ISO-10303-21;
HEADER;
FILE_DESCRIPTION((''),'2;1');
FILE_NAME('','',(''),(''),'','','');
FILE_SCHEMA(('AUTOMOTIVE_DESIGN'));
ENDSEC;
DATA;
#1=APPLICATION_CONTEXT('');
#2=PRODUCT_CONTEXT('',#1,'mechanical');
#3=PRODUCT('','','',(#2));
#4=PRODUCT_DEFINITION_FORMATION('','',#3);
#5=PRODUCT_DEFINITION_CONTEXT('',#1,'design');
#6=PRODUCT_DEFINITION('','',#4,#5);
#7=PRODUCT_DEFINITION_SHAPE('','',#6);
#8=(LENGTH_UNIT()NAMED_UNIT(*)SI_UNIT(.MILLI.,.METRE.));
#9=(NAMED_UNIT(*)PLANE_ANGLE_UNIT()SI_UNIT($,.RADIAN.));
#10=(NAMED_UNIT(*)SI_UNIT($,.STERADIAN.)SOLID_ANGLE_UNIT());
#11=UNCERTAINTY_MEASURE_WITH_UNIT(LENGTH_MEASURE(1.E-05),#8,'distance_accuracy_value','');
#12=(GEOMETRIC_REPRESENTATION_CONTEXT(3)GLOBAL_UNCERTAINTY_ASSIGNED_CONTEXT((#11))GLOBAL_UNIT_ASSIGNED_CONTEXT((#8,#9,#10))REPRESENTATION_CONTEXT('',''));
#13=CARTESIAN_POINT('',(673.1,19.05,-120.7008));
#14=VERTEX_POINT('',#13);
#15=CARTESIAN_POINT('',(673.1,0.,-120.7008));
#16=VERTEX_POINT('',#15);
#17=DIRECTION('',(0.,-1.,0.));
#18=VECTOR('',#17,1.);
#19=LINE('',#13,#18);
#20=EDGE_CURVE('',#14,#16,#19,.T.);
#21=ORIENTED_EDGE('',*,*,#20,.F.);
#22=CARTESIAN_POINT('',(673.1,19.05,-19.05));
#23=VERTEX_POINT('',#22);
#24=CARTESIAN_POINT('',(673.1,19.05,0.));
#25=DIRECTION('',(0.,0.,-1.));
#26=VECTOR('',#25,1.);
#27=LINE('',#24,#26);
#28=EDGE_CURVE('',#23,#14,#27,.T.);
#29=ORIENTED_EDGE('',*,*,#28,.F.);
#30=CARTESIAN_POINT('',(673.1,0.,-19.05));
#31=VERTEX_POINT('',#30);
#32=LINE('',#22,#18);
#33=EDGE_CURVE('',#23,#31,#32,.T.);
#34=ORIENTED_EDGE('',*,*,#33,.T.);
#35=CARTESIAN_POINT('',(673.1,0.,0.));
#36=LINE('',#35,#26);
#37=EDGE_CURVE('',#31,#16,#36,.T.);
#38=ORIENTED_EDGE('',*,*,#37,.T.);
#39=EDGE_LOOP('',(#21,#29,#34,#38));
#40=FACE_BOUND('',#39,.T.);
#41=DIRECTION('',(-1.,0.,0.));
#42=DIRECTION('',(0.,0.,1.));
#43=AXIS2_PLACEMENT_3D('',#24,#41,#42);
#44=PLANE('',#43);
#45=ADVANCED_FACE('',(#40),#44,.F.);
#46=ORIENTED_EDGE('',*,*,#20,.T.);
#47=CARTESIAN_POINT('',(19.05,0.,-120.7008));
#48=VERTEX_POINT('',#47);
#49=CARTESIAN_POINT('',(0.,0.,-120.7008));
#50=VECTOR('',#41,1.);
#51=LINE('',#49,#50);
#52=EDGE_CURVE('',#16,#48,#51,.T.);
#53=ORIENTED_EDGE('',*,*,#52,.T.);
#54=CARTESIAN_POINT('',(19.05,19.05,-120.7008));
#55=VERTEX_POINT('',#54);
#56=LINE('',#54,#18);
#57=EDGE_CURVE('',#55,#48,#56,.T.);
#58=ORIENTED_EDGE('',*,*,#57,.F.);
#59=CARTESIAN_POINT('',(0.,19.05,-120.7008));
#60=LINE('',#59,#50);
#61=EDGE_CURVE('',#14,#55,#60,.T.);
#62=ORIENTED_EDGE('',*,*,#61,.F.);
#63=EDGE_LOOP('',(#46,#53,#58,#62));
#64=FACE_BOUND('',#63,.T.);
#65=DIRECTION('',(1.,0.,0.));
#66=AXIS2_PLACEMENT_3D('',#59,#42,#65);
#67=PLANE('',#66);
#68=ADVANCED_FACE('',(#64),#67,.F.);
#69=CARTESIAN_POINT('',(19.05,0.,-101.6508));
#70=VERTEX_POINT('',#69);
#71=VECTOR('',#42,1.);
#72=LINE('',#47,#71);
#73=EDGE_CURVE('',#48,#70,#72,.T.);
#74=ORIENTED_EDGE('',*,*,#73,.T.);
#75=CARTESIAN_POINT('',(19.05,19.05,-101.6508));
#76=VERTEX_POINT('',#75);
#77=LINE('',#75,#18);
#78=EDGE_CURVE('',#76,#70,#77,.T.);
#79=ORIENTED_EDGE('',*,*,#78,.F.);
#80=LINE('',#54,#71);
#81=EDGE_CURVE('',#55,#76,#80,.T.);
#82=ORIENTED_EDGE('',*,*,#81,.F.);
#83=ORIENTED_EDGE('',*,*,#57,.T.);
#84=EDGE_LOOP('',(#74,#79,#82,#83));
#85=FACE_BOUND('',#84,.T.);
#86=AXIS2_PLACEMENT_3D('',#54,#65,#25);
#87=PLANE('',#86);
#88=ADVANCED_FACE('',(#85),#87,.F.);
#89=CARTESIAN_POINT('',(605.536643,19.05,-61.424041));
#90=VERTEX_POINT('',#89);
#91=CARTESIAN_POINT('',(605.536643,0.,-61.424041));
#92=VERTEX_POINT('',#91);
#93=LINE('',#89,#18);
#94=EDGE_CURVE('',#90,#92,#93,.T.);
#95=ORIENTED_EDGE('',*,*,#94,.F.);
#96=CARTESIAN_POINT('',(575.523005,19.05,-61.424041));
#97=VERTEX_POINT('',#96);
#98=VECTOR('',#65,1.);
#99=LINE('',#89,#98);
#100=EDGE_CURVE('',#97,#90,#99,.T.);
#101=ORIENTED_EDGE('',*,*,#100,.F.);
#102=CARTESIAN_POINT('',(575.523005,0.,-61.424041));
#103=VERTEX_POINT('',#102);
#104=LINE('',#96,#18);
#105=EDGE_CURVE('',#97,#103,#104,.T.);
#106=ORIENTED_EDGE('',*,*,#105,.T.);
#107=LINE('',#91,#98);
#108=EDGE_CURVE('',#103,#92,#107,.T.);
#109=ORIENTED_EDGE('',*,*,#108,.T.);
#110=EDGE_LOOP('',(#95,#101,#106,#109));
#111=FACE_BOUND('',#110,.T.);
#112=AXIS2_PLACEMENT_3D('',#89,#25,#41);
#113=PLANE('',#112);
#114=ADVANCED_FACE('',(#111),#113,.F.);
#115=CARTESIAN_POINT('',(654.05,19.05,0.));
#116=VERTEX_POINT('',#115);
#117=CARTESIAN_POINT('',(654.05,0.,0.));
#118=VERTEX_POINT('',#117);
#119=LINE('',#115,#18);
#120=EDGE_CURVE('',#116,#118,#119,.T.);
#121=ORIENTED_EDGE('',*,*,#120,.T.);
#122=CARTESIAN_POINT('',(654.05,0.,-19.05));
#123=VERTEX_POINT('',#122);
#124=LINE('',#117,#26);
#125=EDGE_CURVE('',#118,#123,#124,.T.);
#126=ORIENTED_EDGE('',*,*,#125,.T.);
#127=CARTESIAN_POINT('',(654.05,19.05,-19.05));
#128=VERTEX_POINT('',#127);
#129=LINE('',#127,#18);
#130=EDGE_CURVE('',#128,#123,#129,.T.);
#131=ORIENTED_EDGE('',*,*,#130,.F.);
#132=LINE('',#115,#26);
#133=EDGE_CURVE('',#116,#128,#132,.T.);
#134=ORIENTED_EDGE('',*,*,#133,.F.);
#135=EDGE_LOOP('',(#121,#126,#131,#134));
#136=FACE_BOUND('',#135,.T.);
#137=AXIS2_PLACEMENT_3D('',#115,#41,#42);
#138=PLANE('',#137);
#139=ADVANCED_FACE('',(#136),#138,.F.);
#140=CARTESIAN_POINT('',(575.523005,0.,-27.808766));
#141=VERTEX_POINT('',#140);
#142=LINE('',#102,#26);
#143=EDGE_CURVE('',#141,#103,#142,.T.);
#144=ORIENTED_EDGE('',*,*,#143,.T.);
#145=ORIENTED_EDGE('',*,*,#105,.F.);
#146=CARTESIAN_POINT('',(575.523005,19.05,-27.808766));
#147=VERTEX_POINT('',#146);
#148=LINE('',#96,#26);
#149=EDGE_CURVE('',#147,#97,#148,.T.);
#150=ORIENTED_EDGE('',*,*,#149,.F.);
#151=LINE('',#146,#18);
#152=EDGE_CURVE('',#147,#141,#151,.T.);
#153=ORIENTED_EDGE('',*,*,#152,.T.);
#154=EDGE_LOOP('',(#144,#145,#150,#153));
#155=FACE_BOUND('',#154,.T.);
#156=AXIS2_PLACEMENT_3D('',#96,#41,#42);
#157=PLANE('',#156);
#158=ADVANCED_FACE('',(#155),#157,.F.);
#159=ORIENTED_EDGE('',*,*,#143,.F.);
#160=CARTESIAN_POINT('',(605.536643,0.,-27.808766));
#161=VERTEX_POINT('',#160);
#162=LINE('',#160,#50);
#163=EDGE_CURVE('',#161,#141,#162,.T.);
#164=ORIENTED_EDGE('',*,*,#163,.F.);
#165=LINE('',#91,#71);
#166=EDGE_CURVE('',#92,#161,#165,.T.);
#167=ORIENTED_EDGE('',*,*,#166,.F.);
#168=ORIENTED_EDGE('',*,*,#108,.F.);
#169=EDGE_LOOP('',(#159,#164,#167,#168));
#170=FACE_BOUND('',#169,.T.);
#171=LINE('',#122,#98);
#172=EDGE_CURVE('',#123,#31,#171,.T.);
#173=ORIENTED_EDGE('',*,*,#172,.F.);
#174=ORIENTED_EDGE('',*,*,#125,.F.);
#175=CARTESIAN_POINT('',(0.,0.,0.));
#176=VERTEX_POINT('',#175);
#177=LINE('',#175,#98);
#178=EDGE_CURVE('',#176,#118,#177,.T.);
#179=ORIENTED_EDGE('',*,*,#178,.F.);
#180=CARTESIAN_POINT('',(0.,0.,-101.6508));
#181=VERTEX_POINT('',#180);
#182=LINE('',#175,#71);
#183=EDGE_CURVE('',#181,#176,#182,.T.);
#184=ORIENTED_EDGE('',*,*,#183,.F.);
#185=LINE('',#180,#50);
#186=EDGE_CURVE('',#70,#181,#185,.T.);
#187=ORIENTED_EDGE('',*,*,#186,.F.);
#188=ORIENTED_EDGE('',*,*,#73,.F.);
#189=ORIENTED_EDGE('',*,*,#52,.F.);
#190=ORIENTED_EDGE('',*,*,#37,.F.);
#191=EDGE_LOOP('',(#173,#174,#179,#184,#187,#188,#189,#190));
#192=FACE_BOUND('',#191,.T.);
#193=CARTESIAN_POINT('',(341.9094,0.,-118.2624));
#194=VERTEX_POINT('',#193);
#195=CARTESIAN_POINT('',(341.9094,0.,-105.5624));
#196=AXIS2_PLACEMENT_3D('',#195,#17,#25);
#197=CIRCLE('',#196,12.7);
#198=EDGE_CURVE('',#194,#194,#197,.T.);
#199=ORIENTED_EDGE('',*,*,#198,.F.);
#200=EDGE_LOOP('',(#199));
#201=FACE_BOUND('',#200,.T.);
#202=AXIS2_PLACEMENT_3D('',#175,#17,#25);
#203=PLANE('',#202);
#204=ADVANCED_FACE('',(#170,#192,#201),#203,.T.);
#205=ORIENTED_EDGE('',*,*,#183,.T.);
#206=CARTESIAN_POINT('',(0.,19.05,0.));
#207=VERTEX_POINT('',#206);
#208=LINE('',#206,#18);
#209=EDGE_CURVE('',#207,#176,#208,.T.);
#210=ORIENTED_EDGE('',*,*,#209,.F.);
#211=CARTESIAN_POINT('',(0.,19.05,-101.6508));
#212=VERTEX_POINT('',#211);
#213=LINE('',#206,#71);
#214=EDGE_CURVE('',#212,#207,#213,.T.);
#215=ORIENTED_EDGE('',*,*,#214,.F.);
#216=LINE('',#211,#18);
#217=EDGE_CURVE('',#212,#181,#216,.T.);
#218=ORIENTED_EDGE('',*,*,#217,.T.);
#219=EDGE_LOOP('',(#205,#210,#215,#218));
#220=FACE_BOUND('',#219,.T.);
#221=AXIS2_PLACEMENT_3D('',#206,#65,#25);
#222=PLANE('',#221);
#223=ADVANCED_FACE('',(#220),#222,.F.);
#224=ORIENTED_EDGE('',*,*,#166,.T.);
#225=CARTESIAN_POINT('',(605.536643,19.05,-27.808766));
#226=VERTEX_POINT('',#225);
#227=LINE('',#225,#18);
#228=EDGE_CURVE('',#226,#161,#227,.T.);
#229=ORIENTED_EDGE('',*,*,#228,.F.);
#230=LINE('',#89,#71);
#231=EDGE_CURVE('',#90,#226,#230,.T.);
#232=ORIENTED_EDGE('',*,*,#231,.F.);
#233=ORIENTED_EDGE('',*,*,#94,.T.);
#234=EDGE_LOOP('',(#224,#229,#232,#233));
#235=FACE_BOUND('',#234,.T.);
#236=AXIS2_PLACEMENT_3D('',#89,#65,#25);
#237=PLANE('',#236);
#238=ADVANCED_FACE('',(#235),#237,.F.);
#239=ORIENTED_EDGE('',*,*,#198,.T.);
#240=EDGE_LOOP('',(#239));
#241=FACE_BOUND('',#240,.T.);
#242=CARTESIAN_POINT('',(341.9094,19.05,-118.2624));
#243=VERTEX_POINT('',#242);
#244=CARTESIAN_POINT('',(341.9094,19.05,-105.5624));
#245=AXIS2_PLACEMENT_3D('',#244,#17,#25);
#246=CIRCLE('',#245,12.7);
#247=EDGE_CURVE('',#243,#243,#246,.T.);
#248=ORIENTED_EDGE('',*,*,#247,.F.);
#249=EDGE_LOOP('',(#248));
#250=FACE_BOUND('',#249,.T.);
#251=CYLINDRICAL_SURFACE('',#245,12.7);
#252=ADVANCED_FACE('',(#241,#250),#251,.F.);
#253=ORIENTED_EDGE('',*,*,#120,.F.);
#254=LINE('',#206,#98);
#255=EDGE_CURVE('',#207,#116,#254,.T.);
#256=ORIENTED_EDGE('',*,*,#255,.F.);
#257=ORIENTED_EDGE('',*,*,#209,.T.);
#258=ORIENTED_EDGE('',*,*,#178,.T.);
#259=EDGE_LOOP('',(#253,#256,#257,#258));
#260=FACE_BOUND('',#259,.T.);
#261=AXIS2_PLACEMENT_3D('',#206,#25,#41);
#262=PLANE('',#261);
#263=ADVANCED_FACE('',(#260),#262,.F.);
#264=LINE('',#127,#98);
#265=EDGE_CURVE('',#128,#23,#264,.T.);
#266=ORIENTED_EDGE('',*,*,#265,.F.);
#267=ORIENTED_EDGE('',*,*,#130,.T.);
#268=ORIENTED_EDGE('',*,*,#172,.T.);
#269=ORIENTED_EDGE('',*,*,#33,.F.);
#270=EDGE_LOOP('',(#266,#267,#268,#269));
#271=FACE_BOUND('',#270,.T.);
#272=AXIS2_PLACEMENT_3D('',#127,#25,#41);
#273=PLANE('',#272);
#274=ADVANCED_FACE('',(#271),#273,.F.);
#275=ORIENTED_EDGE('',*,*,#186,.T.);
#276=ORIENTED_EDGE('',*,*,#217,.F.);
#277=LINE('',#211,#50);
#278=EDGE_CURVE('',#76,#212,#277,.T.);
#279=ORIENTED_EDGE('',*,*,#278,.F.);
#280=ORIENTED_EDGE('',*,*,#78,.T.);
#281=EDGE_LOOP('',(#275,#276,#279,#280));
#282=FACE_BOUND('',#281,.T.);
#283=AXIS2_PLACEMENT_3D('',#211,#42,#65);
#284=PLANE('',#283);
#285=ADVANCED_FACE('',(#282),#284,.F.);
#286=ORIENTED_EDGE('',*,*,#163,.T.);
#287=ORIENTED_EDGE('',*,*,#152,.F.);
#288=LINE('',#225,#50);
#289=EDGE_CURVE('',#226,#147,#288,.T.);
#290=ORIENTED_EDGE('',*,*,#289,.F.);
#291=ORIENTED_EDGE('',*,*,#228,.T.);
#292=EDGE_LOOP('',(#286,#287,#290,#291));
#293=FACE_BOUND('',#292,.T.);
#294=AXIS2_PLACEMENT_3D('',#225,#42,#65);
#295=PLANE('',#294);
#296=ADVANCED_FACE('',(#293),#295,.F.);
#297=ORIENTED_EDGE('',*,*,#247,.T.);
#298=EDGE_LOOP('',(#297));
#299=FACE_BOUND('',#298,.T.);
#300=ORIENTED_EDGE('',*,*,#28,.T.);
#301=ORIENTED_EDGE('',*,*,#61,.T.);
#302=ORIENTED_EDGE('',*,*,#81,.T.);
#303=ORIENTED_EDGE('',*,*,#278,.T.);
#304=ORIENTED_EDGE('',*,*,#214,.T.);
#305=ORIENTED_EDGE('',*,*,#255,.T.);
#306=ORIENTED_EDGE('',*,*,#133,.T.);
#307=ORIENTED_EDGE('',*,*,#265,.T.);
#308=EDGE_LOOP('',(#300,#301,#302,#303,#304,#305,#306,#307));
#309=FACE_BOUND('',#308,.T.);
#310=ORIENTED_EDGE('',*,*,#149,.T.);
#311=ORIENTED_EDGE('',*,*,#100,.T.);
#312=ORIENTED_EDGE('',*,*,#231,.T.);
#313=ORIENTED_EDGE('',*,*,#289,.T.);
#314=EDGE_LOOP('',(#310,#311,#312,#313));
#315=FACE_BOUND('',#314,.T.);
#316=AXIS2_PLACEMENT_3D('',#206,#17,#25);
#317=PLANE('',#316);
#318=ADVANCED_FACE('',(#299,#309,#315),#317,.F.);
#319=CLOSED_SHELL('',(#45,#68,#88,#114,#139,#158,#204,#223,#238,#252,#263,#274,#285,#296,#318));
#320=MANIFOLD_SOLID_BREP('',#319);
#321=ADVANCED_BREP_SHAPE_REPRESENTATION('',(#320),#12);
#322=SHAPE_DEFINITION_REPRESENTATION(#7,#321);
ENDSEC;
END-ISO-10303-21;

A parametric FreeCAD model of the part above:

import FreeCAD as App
import Part
import Sketcher

V = App.Vector
Q = App.Units.Quantity


def add_polygon(sketch, points):
    """Adds a closed chain of lines whose ends are joined by coincident constraints."""
    first, n = sketch.GeometryCount, len(points)
    for a, b in zip(points, points[1:] + points[:1]):
        sketch.addGeometry(Part.LineSegment(App.Vector(*a, 0), App.Vector(*b, 0)), False)
    for i in range(n):
        sketch.addConstraint(Sketcher.Constraint("Coincident", first + i, 2, first + (i + 1) % n, 1))

doc = App.newDocument("Part")
params = doc.addObject("Spreadsheet::Sheet", "Params")
for row, (alias, value) in enumerate([
    ("sketch1_width", "26.5 in"),
    ("sketch1_height", "4.752 in"),
    ("pad1_length", "0.75 in"),
    ("sketch3_diameter", "1 in"),
    ("sketch4_width", "0.75 in"),
], start=1):
    params.set(f"A{row}", alias)
    params.set(f"B{row}", "=" + value)
    params.setAlias(f"B{row}", alias)

body = doc.addObject("PartDesign::Body", "Body")

sketch1 = body.newObject("Sketcher::SketchObject", "Sketch")
sketch1.AttachmentSupport = (doc.getObject("XZ_Plane"), [""])
sketch1.MapMode = "FlatFace"
add_polygon(sketch1, [(0, -121), (0, 0), (673, 0), (673, -121)])
sketch1.addConstraint(Sketcher.Constraint("Vertical", 0))
sketch1.addConstraint(Sketcher.Constraint("Horizontal", 1))
sketch1.addConstraint(Sketcher.Constraint("Vertical", 2))
sketch1.addConstraint(Sketcher.Constraint("Horizontal", 3))
sketch1.addConstraint(Sketcher.Constraint("Coincident", 0, 2, -1, 1))
sketch1.addConstraint(Sketcher.Constraint("DistanceX", 1, 1, 1, 2, Q("26.5 in")))
sketch1.addConstraint(Sketcher.Constraint("DistanceY", 0, 1, 0, 2, Q("4.752 in")))
sketch1.setExpression("Constraints[9]", "Params.sketch1_width")
sketch1.setExpression("Constraints[10]", "Params.sketch1_height")
pad1 = body.newObject("PartDesign::Pad", "Pad")
pad1.Profile = sketch1
pad1.setExpression("Length", "Params.pad1_length")
pad1.Reversed = True

sketch2 = body.newObject("Sketcher::SketchObject", "Sketch001")
sketch2.AttachmentSupport = (doc.getObject("XZ_Plane"), [""])
sketch2.MapMode = "FlatFace"
add_polygon(sketch2, [(576, -28), (576, -61), (606, -61), (606, -28)])
sketch2.addConstraint(Sketcher.Constraint("Vertical", 0))
sketch2.addConstraint(Sketcher.Constraint("Horizontal", 1))
sketch2.addConstraint(Sketcher.Constraint("Vertical", 2))
sketch2.addConstraint(Sketcher.Constraint("Horizontal", 3))
sketch2.addConstraint(Sketcher.Constraint("DistanceX", 1, 1, 1, 2, 30.013638))
sketch2.addConstraint(Sketcher.Constraint("DistanceY", 0, 2, 0, 1, 33.615275))
sketch2.addConstraint(Sketcher.Constraint("DistanceY", 0, 2, -1, 1, 61.424041))
sketch2.addConstraint(Sketcher.Constraint("DistanceX", -1, 1, 0, 2, 575.523005))
pocket1 = body.newObject("PartDesign::Pocket", "Pocket")
pocket1.Profile = sketch2
pocket1.Type = "ThroughAll"

sketch3 = body.newObject("Sketcher::SketchObject", "Sketch002")
sketch3.AttachmentSupport = (doc.getObject("XZ_Plane"), [""])
sketch3.MapMode = "FlatFace"
sketch3.addGeometry(Part.Circle(V(342, -106, 0), V(0, 0, 1), 13), False)
sketch3.addConstraint(Sketcher.Constraint("Diameter", 0, Q("1 in")))
sketch3.addConstraint(Sketcher.Constraint("DistanceX", -1, 1, 0, 3, Q("13.461 in")))
sketch3.addConstraint(Sketcher.Constraint("DistanceY", 0, 3, -1, 1, Q("4.156 in")))
sketch3.setExpression("Constraints[0]", "Params.sketch3_diameter")
pocket2 = body.newObject("PartDesign::Pocket", "Pocket001")
pocket2.Profile = sketch3
pocket2.Type = "ThroughAll"

sketch4 = body.newObject("Sketcher::SketchObject", "Sketch003")
sketch4.AttachmentSupport = (doc.getObject("XZ_Plane"), [""])
sketch4.MapMode = "FlatFace"
add_polygon(sketch4, [(654, 0), (654, -19), (673, -19), (673, 0)])
add_polygon(sketch4, [(0, -102), (0, -121), (19, -121), (19, -102)])
sketch4.addConstraint(Sketcher.Constraint("Vertical", 0))
sketch4.addConstraint(Sketcher.Constraint("Horizontal", 1))
sketch4.addConstraint(Sketcher.Constraint("Vertical", 2))
sketch4.addConstraint(Sketcher.Constraint("Horizontal", 3))
sketch4.addConstraint(Sketcher.Constraint("Vertical", 4))
sketch4.addConstraint(Sketcher.Constraint("Horizontal", 5))
sketch4.addConstraint(Sketcher.Constraint("Vertical", 6))
sketch4.addConstraint(Sketcher.Constraint("Horizontal", 7))
sketch4.addConstraint(Sketcher.Constraint("PointOnObject", 2, 2, -1))
sketch4.addConstraint(Sketcher.Constraint("PointOnObject", 4, 2, -2))
sketch4.addConstraint(Sketcher.Constraint("Equal", 3, 5))
sketch4.addConstraint(Sketcher.Constraint("Equal", 7, 0))
sketch4.addConstraint(Sketcher.Constraint("Equal", 2, 4))
sketch4.addConstraint(Sketcher.Constraint("DistanceX", 5, 2, 0, 2, Q("25 in")))
sketch4.addConstraint(Sketcher.Constraint("DistanceX", 1, 1, 1, 2, Q("0.75 in")))
sketch4.addConstraint(Sketcher.Constraint("DistanceY", 4, 2, -1, 1, Q("4.752 in")))
sketch4.setExpression("Constraints[22]", "Params.sketch4_width")
pocket3 = body.newObject("PartDesign::Pocket", "Pocket002")
pocket3.Profile = sketch4
pocket3.Type = "ThroughAll"

doc.recompute()
